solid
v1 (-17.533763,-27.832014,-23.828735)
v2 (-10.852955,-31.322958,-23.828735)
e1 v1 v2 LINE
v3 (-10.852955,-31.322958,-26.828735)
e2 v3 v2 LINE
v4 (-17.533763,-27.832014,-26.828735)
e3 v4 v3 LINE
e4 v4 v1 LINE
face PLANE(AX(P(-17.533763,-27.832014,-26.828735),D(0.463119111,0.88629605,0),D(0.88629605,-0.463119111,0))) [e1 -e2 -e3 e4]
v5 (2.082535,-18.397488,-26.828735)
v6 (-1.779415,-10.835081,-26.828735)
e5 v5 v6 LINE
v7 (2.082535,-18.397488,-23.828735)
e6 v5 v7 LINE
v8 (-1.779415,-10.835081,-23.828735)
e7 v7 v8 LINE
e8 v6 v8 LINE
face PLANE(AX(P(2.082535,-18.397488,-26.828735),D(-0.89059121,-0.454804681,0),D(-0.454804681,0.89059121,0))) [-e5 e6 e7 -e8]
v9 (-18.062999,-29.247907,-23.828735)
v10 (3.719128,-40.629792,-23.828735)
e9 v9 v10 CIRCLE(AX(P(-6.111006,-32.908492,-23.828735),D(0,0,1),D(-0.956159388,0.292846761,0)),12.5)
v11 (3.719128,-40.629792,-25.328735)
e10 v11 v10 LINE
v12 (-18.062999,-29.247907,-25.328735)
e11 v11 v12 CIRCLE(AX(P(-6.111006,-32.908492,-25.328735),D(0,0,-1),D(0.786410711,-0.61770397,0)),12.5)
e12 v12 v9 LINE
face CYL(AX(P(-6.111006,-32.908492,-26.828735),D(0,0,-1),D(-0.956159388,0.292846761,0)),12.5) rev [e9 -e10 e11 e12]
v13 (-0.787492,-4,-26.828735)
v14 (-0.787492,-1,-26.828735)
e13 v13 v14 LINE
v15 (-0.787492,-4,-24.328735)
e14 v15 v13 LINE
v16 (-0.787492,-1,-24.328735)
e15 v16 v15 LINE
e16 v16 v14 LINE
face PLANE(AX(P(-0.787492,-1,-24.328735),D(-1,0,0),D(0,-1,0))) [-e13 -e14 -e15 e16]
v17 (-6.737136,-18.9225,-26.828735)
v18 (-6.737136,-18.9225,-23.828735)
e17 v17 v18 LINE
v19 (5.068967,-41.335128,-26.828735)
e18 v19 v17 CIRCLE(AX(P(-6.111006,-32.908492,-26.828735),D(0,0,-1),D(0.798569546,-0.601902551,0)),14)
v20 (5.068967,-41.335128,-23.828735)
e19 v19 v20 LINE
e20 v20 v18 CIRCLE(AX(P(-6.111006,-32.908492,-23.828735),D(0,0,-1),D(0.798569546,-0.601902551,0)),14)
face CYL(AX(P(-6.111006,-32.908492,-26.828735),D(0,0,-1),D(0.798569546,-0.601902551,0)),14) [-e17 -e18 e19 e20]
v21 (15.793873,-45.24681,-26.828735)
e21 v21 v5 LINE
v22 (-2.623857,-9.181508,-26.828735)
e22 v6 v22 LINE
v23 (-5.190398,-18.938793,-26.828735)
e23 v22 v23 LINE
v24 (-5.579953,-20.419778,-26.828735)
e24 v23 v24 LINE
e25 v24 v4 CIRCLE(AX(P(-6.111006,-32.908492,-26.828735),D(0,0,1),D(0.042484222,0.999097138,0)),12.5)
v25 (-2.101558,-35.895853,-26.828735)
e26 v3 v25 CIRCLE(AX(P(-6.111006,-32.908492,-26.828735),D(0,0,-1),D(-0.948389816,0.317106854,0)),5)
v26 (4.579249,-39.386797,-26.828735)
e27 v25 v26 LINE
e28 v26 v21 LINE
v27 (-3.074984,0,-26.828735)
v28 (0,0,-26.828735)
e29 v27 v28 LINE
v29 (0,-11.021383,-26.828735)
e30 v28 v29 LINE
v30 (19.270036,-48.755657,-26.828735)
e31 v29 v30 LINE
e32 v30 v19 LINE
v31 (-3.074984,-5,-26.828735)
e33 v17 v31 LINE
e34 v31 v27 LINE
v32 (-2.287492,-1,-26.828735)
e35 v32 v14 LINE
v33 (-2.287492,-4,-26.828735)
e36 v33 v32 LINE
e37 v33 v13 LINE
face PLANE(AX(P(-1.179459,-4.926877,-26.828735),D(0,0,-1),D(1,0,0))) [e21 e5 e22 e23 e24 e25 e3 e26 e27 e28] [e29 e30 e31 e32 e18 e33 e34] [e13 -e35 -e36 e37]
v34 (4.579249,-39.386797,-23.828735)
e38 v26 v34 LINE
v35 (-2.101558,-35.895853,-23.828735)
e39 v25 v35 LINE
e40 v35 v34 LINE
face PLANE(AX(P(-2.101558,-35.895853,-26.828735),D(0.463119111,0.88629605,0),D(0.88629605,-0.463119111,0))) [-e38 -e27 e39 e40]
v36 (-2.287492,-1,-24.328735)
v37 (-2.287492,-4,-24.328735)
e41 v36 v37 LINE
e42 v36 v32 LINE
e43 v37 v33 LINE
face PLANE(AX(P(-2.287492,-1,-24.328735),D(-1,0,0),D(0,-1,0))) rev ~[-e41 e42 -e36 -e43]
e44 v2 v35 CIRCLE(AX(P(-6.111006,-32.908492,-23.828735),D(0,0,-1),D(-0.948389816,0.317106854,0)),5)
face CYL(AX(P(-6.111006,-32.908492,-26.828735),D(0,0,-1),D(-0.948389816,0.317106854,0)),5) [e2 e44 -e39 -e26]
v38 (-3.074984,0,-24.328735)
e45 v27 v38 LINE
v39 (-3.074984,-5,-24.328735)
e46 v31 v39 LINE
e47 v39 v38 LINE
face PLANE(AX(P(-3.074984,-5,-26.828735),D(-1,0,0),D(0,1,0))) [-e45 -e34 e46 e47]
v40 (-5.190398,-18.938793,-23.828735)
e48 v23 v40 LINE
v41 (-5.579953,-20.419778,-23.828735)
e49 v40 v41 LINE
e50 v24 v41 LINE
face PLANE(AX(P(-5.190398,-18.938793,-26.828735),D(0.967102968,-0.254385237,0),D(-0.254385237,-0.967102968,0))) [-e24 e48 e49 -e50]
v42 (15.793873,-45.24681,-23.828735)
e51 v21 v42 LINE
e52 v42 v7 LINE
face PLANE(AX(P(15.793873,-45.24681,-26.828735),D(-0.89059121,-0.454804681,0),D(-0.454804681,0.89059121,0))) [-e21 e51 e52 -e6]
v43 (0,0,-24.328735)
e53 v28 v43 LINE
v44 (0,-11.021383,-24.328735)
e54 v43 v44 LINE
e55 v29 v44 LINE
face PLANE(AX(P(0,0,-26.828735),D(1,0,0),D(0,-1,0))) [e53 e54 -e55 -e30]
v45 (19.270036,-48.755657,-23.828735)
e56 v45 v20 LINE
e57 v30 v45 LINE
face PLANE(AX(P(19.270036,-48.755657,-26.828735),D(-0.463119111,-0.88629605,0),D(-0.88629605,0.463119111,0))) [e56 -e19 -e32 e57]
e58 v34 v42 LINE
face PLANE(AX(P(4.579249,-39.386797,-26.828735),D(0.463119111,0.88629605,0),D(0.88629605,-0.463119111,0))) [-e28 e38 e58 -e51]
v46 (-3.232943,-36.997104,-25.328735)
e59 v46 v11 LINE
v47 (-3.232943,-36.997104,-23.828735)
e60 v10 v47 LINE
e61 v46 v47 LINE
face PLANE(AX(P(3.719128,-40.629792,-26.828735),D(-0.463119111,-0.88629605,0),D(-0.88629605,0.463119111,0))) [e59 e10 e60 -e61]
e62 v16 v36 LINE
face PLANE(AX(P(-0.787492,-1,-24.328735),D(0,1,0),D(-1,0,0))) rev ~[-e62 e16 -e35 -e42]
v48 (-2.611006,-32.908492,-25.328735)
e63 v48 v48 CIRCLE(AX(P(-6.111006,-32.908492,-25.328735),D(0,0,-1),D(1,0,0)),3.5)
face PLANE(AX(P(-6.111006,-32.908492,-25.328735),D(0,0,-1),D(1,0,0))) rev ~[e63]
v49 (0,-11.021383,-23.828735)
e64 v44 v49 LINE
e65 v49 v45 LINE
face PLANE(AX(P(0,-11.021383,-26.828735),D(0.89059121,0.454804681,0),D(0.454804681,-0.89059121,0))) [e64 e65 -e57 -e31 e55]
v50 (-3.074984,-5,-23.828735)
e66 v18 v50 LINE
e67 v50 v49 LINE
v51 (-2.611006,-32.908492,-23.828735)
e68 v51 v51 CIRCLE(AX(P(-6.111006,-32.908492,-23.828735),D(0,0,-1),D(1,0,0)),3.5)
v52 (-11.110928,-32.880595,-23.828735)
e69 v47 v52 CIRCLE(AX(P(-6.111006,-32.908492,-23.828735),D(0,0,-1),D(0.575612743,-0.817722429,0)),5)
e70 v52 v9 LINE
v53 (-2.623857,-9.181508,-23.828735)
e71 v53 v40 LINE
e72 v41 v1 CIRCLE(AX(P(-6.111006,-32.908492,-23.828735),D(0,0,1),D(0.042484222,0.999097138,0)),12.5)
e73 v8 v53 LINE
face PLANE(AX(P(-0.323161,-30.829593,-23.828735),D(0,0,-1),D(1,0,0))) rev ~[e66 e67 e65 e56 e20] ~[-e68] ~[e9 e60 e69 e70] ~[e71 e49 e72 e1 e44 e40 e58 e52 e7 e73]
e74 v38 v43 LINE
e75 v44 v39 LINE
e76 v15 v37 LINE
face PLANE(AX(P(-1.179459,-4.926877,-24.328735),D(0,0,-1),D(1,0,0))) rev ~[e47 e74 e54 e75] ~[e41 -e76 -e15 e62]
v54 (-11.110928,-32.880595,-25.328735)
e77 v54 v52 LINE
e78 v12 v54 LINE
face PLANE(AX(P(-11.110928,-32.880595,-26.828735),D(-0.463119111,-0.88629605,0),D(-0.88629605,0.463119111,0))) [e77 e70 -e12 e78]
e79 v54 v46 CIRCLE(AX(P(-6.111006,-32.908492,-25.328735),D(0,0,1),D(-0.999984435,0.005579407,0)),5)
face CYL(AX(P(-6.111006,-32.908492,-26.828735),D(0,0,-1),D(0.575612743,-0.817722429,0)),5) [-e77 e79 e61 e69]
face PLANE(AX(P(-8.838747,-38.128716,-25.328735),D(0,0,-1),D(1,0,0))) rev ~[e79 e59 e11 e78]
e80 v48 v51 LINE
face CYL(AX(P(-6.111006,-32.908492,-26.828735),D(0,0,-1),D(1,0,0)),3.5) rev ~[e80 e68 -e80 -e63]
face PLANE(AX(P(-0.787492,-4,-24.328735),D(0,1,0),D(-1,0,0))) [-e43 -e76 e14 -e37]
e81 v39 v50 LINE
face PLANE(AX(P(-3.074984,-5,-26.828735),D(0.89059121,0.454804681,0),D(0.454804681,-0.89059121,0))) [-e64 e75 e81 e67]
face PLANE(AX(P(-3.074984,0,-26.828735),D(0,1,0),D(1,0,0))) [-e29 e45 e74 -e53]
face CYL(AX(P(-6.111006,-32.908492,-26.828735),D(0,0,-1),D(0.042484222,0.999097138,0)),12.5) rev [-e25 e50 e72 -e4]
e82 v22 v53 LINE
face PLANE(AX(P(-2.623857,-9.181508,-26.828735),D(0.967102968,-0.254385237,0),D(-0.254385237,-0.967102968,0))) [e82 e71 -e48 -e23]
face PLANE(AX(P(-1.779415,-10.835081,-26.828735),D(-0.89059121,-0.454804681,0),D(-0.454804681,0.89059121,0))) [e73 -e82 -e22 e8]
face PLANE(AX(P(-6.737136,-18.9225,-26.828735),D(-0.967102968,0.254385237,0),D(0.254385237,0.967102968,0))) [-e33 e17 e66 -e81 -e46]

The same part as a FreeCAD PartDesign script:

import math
import FreeCAD as App
import Part
import Sketcher

V = App.Vector
Q = App.Units.Quantity


def add_polygon(sketch, points):
    """Adds a closed chain of lines whose ends are joined by coincident constraints."""
    first, n = sketch.GeometryCount, len(points)
    for a, b in zip(points, points[1:] + points[:1]):
        sketch.addGeometry(Part.LineSegment(App.Vector(*a, 0), App.Vector(*b, 0)), False)
    for i in range(n):
        sketch.addConstraint(Sketcher.Constraint("Coincident", first + i, 2, first + (i + 1) % n, 1))

doc = App.newDocument("Part")
params = doc.addObject("Spreadsheet::Sheet", "Params")
for row, (alias, value) in enumerate([
    ("sketch1_diameter", "7 mm"),
    ("sketch1_radius", "14 mm"),
    ("sketch1_radius2", "5 mm"),
    ("sketch1_radius3", "5 mm"),
    ("sketch1_radius4", "12.5 mm"),
    ("pad1_length", "3 mm"),
    ("sketch2_diameter", "7 mm"),
    ("sketch2_radius", "5 mm"),
    ("sketch2_radius2", "12.5 mm"),
    ("pad2_length", "1.5 mm"),
    ("sketch3_height", "5 mm"),
    ("pad3_length", "2.5 mm"),
    ("sketch4_height", "3 mm"),
    ("sketch4_width", "1.5 mm"),
    ("pocket1_length", "25 mm"),
], start=1):
    params.set(f"A{row}", alias)
    params.set(f"B{row}", "=" + value)
    params.setAlias(f"B{row}", alias)

body = doc.addObject("PartDesign::Body", "Body")

sketch1 = body.newObject("Sketcher::SketchObject", "Sketch")
sketch1.AttachmentSupport = (doc.getObject("XZ_Plane"), [""])
sketch1.MapMode = "FlatFace"
sketch1.addGeometry([
    Part.ArcOfCircle(Part.Circle(V(-6.111006, 6.079757, 0), V(0, 0, 1), 14), math.radians(37.00628), math.radians(267.436674)),
    Part.LineSegment(V(-6.737136, -7.906235, 0), V(-3.074984, -21.828735, 0)),
    Part.LineSegment(V(-3.074984, -21.828735, 0), V(0, -15.807352, 0)),
    Part.LineSegment(V(0, -15.807352, 0), V(19.270036, 21.926922, 0)),
    Part.LineSegment(V(19.270036, 21.926922, 0), V(5.068967, 14.506392, 0)),
    Part.LineSegment(V(-5.190398, -7.889942, 0), V(-5.579953, -6.408958, 0)),
    Part.ArcOfCircle(Part.Circle(V(-6.111006, 6.079757, 0), V(0, 0, 1), 12.5), math.radians(-156.038779), math.radians(-87.565101)),
    Part.LineSegment(V(-17.533763, 1.003279, 0), V(-10.852955, 4.494222, 0)),
    Part.ArcOfCircle(Part.Circle(V(-6.111006, 6.079757, 0), V(0, 0, 1), 5), math.radians(-161.51195), math.radians(36.689074)),
    Part.LineSegment(V(-2.101558, 9.067118, 0), V(4.579249, 12.558062, 0)),
    Part.LineSegment(V(4.579249, 12.558062, 0), V(15.793873, 18.418075, 0)),
    Part.LineSegment(V(15.793873, 18.418075, 0), V(2.082535, -8.431247, 0)),
    Part.LineSegment(V(2.082535, -8.431247, 0), V(-1.779415, -15.993655, 0)),
    Part.LineSegment(V(-1.779415, -15.993655, 0), V(-2.623857, -17.647227, 0)),
    Part.LineSegment(V(-2.623857, -17.647227, 0), V(-5.190398, -7.889942, 0)),
    Part.Circle(V(-6.111006, 6.079757, 0), V(0, 0, 1), 3.5),
    Part.ArcOfCircle(Part.Circle(V(-6.111006, 6.079757, 0), V(0, 0, 1), 5), math.radians(54.857446), math.radians(180.319678)),
    Part.LineSegment(V(-11.110928, 6.05186, 0), V(-18.062999, 2.419172, 0)),
    Part.ArcOfCircle(Part.Circle(V(-6.111006, 6.079757, 0), V(0, 0, 1), 12.5), math.radians(38.148659), math.radians(197.028465)),
    Part.LineSegment(V(3.719128, 13.801056, 0), V(-3.232943, 10.168369, 0)),
], False)
sketch1.addConstraint([
    Sketcher.Constraint("Coincident", 0, 2, 1, 1),
    Sketcher.Constraint("Coincident", 1, 2, 2, 1),
    Sketcher.Constraint("Coincident", 2, 2, 3, 1),
    Sketcher.Constraint("Coincident", 3, 2, 4, 1),
    Sketcher.Constraint("Coincident", 4, 2, 0, 1),
    Sketcher.Constraint("Coincident", 5, 2, 6, 2),
    Sketcher.Constraint("Coincident", 6, 1, 7, 1),
    Sketcher.Constraint("Coincident", 7, 2, 8, 1),
    Sketcher.Constraint("Coincident", 8, 2, 9, 1),
    Sketcher.Constraint("Coincident", 9, 2, 10, 1),
    Sketcher.Constraint("Coincident", 10, 2, 11, 1),
    Sketcher.Constraint("Coincident", 11, 2, 12, 1),
    Sketcher.Constraint("Coincident", 12, 2, 13, 1),
    Sketcher.Constraint("Coincident", 13, 2, 14, 1),
    Sketcher.Constraint("Coincident", 14, 2, 5, 1),
    Sketcher.Constraint("Coincident", 16, 2, 17, 1),
    Sketcher.Constraint("Coincident", 17, 2, 18, 2),
    Sketcher.Constraint("Coincident", 18, 1, 19, 1),
    Sketcher.Constraint("Coincident", 19, 2, 16, 1),
    Sketcher.Constraint("Coincident", 6, 3, 0, 3),
    Sketcher.Constraint("Coincident", 8, 3, 0, 3),
    Sketcher.Constraint("Coincident", 15, 3, 0, 3),
    Sketcher.Constraint("Coincident", 16, 3, 0, 3),
    Sketcher.Constraint("Coincident", 18, 3, 0, 3),
    Sketcher.Constraint("PointOnObject", 2, 2, -2),
    Sketcher.Constraint("Diameter", 15, Q("7 mm")),
    Sketcher.Constraint("Radius", 0, Q("14 mm")),
    Sketcher.Constraint("Radius", 8, Q("5 mm")),
    Sketcher.Constraint("Radius", 16, Q("5 mm")),
    Sketcher.Constraint("Radius", 6, Q("12.5 mm")),
    Sketcher.Constraint("Radius", 18, Q("12.5 mm")),
    Sketcher.Constraint("DistanceX", 17, 2, -1, 1, Q("18.062999 mm")),
    Sketcher.Constraint("DistanceY", 1, 2, 0, 2, Q("13.9225 mm")),
    Sketcher.Constraint("DistanceY", 0, 3, 18, 1, Q("7.7213 mm")),
    Sketcher.Constraint("Distance", 1, Q("14.396089 mm")),
    Sketcher.Constraint("Distance", 2, Q("6.761108 mm")),
    Sketcher.Constraint("Distance", 4, Q("16.02294 mm")),
    Sketcher.Constraint("Distance", 5, Q("1.531362 mm")),
    Sketcher.Constraint("Distance", 10, Q("12.65336 mm")),
    Sketcher.Constraint("Distance", 11, Q("30.147751 mm")),
    Sketcher.Constraint("Distance", 14, Q("10.089189 mm")),
    Sketcher.Constraint("Distance", 17, Q("7.843959 mm")),
    Sketcher.Constraint("Distance", 19, Q("7.843959 mm")),
    Sketcher.Constraint("DistanceY", 2, 2, -1, 1, Q("15.807352 mm")),
    Sketcher.Constraint("DistanceY", -1, 1, 6, 1, Q("1.003279 mm")),
    Sketcher.Constraint("DistanceX", 8, 2, -1, 1, Q("2.101558 mm")),
    Sketcher.Constraint("DistanceX", -1, 1, 9, 2, Q("4.579249 mm")),
    Sketcher.Constraint("DistanceY", -1, 1, 9, 2, Q("12.558062 mm")),
    Sketcher.Constraint("DistanceY", 14, 2, -1, 1, Q("7.889942 mm")),
    Sketcher.Constraint("DistanceX", 16, 2, -1, 1, Q("11.110928 mm")),
    Sketcher.Constraint("DistanceY", -1, 1, 16, 2, Q("6.05186 mm")),
    Sketcher.Constraint("DistanceX", 0, 3, 3, 2, Q("25.381042 mm")),
    Sketcher.Constraint("DistanceX", 7, 2, 15, 3, Q("4.741949 mm")),
    Sketcher.Constraint("DistanceX", 9, 2, 4, 2, Q("0.489718 mm")),
    Sketcher.Constraint("DistanceX", 8, 2, 10, 2, Q("17.895431 mm")),
    Sketcher.Constraint("DistanceX", 5, 2, 11, 2, Q("7.662488 mm")),
    Sketcher.Constraint("DistanceY", 11, 2, 5, 2, Q("2.022289 mm")),
    Sketcher.Constraint("DistanceX", 1, 2, 12, 2, Q("1.295569 mm")),
    Sketcher.Constraint("DistanceY", 1, 2, 12, 2, Q("5.835081 mm")),
    Sketcher.Constraint("DistanceX", 13, 2, 12, 2, Q("0.844442 mm")),
])
sketch1.setExpression("Constraints[25]", "Params.sketch1_diameter")
sketch1.setExpression("Constraints[26]", "Params.sketch1_radius")
sketch1.setExpression("Constraints[27]", "Params.sketch1_radius2")
sketch1.setExpression("Constraints[28]", "Params.sketch1_radius3")
sketch1.setExpression("Constraints[29]", "Params.sketch1_radius4")
pad1 = body.newObject("PartDesign::Pad", "Pad")
pad1.Profile = sketch1
pad1.setExpression("Length", "Params.pad1_length")
pad1.Reversed = True

sketch2 = body.newObject("Sketcher::SketchObject", "Sketch001")
sketch2.AttachmentSupport = (doc.getObject("XZ_Plane"), [""])
sketch2.MapMode = "FlatFace"
sketch2.addGeometry([
    Part.ArcOfCircle(Part.Circle(V(-6.1, 6.1, 0), V(0, 0, 1), 12.5), math.radians(38), math.radians(197)),
    Part.LineSegment(V(-18.1, 2.4, 0), V(-11.1, 6.1, 0)),
    Part.ArcOfCircle(Part.Circle(V(-6.1, 6.1, 0), V(0, 0, 1), 5), math.radians(55), math.radians(180)),
    Part.LineSegment(V(-3.2, 10.2, 0), V(3.7, 13.8, 0)),
    Part.Circle(V(-6.1, 6.1, 0), V(0, 0, 1), 3.5),
], False)
sketch2.addConstraint([
    Sketcher.Constraint("Coincident", 0, 2, 1, 1),
    Sketcher.Constraint("Coincident", 1, 2, 2, 2),
    Sketcher.Constraint("Coincident", 2, 1, 3, 1),
    Sketcher.Constraint("Coincident", 3, 2, 0, 1),
    Sketcher.Constraint("Coincident", 2, 3, 0, 3),
    Sketcher.Constraint("Coincident", 4, 3, 0, 3),
    Sketcher.Constraint("Parallel", 1, 3),
    Sketcher.Constraint("Equal", 1, 3),
    Sketcher.Constraint("Diameter", 4, Q("7 mm")),
    Sketcher.Constraint("Radius", 2, Q("5 mm")),
    Sketcher.Constraint("Radius", 0, Q("12.5 mm")),
    Sketcher.Constraint("DistanceX", 0, 2, -1, 1, Q("18.062999 mm")),
    Sketcher.Constraint("DistanceY", 2, 3, 3, 2, Q("7.7213 mm")),
    Sketcher.Constraint("Distance", 1, Q("7.843959 mm")),
    Sketcher.Constraint("DistanceY", -1, 1, 1, 2, Q("6.05186 mm")),
])
sketch2.setExpression("Constraints[8]", "Params.sketch2_diameter")
sketch2.setExpression("Constraints[9]", "Params.sketch2_radius")
sketch2.setExpression("Constraints[10]", "Params.sketch2_radius2")
pad2 = body.newObject("PartDesign::Pad", "Pad001")
pad2.Profile = sketch2
pad2.setExpression("Length", "Params.pad2_length")
pad2.Reversed = True

sketch3 = body.newObject("Sketcher::SketchObject", "Sketch002")
sketch3.AttachmentSupport = (doc.getObject("XZ_Plane"), [""])
sketch3.MapMode = "FlatFace"
add_polygon(sketch3, [(0, -15.8), (-3.1, -21.8), (-3.1, -26.8), (0, -26.8)])
sketch3.addConstraint([
    Sketcher.Constraint("Vertical", 1),
    Sketcher.Constraint("Horizontal", 2),
    Sketcher.Constraint("Vertical", 3),
    Sketcher.Constraint("PointOnObject", 2, 2, -2),
    Sketcher.Constraint("DistanceY", 1, 2, 1, 1, Q("5 mm")),
    Sketcher.Constraint("Distance", 0, Q("6.761108 mm")),
    Sketcher.Constraint("DistanceX", 2, 1, 2, 2, Q("3.074984 mm")),
    Sketcher.Constraint("DistanceY", 3, 2, -1, 1, Q("15.807352 mm")),
])
sketch3.setExpression("Constraints[8]", "Params.sketch3_height")
pad3 = body.newObject("PartDesign::Pad", "Pad002")
pad3.Profile = sketch3
pad3.setExpression("Length", "Params.pad3_length")
pad3.Reversed = True

sketch4 = body.newObject("Sketcher::SketchObject", "Sketch003")
sketch4.AttachmentSupport = (doc.getObject("XZ_Plane"), [""])
sketch4.MapMode = "FlatFace"
sketch4.AttachmentOffset = App.Placement(V(0, 0, -2.5), App.Rotation())
add_polygon(sketch4, [(-0.8, -22.8), (-0.8, -25.8), (-2.3, -25.8), (-2.3, -22.8)])
sketch4.addConstraint([
    Sketcher.Constraint("Vertical", 0),
    Sketcher.Constraint("Horizontal", 1),
    Sketcher.Constraint("Vertical", 2),
    Sketcher.Constraint("Horizontal", 3),
    Sketcher.Constraint("DistanceY", 0, 2, 0, 1, Q("3 mm")),
    Sketcher.Constraint("DistanceX", 1, 2, 1, 1, Q("1.5 mm")),
    Sketcher.Constraint("DistanceX", 0, 2, -1, 1, Q("0.787492 mm")),
    Sketcher.Constraint("DistanceY", 0, 2, -1, 1, Q("25.828735 mm")),
])
sketch4.setExpression("Constraints[8]", "Params.sketch4_height")
sketch4.setExpression("Constraints[9]", "Params.sketch4_width")
pocket1 = body.newObject("PartDesign::Pocket", "Pocket")
pocket1.Profile = sketch4
pocket1.setExpression("Length", "Params.pocket1_length")
pocket1.Reversed = True
body2 = doc.addObject("PartDesign::Body", "Body001")
doc.recompute()

body.Placement = App.Placement(V(0, -26.828735, -26.828735), App.Rotation(V(1, 0, 0), 90))
boolean = body2.newObject("PartDesign::Boolean", "Boolean")
boolean.Type = "Fuse"
boolean.addObjects([body])

doc.recompute()
